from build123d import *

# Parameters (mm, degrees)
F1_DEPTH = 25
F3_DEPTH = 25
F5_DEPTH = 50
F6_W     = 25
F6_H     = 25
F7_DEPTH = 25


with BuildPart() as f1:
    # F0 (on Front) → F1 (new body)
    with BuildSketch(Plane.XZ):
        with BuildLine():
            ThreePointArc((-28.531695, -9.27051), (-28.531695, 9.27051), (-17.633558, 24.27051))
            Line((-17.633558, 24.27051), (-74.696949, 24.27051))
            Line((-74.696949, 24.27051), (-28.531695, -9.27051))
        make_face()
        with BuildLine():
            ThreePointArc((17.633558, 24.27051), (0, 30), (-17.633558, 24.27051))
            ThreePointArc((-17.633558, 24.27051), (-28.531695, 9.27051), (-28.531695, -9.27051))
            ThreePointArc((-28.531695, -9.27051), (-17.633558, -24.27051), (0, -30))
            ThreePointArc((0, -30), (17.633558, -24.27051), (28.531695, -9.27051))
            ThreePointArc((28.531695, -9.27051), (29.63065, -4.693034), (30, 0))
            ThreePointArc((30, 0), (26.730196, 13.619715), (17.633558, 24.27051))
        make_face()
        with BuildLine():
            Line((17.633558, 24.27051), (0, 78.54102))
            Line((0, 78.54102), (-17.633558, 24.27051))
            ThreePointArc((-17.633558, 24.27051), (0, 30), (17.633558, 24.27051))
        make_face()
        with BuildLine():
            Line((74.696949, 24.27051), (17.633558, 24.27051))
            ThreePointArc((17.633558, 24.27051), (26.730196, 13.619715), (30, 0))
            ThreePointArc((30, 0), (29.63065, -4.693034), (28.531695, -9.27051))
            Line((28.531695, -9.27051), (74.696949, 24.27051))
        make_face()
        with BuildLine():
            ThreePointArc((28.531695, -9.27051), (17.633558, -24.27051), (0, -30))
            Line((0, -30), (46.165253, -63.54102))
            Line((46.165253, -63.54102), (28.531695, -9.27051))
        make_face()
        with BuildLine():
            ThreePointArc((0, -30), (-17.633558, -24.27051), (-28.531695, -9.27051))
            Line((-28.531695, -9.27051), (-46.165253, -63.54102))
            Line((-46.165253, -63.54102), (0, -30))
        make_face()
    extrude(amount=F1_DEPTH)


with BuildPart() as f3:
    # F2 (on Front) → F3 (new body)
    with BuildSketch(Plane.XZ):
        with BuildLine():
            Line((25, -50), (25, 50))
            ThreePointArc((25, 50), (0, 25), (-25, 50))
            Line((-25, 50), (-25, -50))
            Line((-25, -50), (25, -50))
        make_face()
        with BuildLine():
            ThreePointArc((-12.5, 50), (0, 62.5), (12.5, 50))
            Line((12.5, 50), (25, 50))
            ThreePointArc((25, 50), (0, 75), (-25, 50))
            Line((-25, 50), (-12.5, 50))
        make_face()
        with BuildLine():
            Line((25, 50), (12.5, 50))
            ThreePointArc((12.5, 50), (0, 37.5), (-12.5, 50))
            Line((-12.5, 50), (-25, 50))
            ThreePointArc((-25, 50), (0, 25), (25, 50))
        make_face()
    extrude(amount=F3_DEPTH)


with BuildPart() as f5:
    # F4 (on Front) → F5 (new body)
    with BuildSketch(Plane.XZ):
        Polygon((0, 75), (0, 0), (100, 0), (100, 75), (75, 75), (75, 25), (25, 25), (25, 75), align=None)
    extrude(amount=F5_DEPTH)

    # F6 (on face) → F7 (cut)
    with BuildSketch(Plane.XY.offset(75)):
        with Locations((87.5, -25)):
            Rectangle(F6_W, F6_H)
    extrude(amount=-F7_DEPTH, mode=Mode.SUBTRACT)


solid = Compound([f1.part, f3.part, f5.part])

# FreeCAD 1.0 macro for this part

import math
import FreeCAD as App
import Part
import Sketcher
Q = App.Units.Quantity

doc = App.newDocument("Part")
body = doc.addObject("PartDesign::Body", "Body")

# Sketch on XZ plane
sketch1 = doc.addObject("Sketcher::SketchObject", "Sketch")
body.addObject(sketch1)
sketch1.AttachmentSupport = (doc.XZ_Plane, [""])
sketch1.MapMode = "FlatFace"
sketch1.addGeometry([
    Part.LineSegment(App.Vector(-18, 24, 0), App.Vector(-75, 24, 0)),  # 0
    Part.LineSegment(App.Vector(-75, 24, 0), App.Vector(-29, -9, 0)),  # 1
    Part.LineSegment(App.Vector(-29, -9, 0), App.Vector(-46, -64, 0)),  # 2
    Part.LineSegment(App.Vector(-46, -64, 0), App.Vector(0, -30, 0)),  # 3
    Part.LineSegment(App.Vector(0, -30, 0), App.Vector(46, -64, 0)),  # 4
    Part.LineSegment(App.Vector(46, -64, 0), App.Vector(29, -9, 0)),  # 5
    Part.LineSegment(App.Vector(29, -9, 0), App.Vector(75, 24, 0)),  # 6
    Part.LineSegment(App.Vector(75, 24, 0), App.Vector(18, 24, 0)),  # 7
    Part.LineSegment(App.Vector(18, 24, 0), App.Vector(0, 79, 0)),  # 8
    Part.LineSegment(App.Vector(0, 79, 0), App.Vector(-18, 24, 0)),  # 9
], False)
sketch1.addConstraint([
    Sketcher.Constraint("Coincident", 0, 2, 1, 1),
    Sketcher.Constraint("Coincident", 1, 2, 2, 1),
    Sketcher.Constraint("Coincident", 2, 2, 3, 1),
    Sketcher.Constraint("Coincident", 3, 2, 4, 1),
    Sketcher.Constraint("Coincident", 4, 2, 5, 1),
    Sketcher.Constraint("Coincident", 5, 2, 6, 1),
    Sketcher.Constraint("Coincident", 6, 2, 7, 1),
    Sketcher.Constraint("Coincident", 7, 2, 8, 1),
    Sketcher.Constraint("Coincident", 8, 2, 9, 1),
    Sketcher.Constraint("Coincident", 9, 2, 0, 1),
    Sketcher.Constraint("Horizontal", 0),
    Sketcher.Constraint("Horizontal", 7),
    Sketcher.Constraint("Symmetric", 2, 2, 4, 2, -2),
    Sketcher.Constraint("Symmetric", 1, 2, 5, 2, -2),
    Sketcher.Constraint("Symmetric", 0, 2, 6, 2, -2),
    Sketcher.Constraint("PointOnObject", 3, 2, -2),
    Sketcher.Constraint("PointOnObject", 8, 2, -2),
    Sketcher.Constraint("Parallel", 1, 4),
    Sketcher.Constraint("Parallel", 5, 8),
    Sketcher.Constraint("Parallel", 2, 9),
    Sketcher.Constraint("Equal", 1, 2),
    Sketcher.Constraint("Equal", 2, 3),
    Sketcher.Constraint("Equal", 6, 8),
    Sketcher.Constraint("Angle", 1, Q("-36 deg")),
    Sketcher.Constraint("Angle", 2, Q("-108 deg")),
    Sketcher.Constraint("DistanceY", 3, 2, -1, 1, 30.0),
    Sketcher.Constraint("DistanceX", 0, 2, 0, 1, 57.063391),
])
pad1 = doc.addObject("PartDesign::Pad", "Pad")
body.addObject(pad1)
pad1.Profile = sketch1
pad1.Length = 25
body2 = doc.addObject("PartDesign::Body", "Body001")

# Sketch on XZ plane
sketch2 = doc.addObject("Sketcher::SketchObject", "Sketch001")
body2.addObject(sketch2)
sketch2.AttachmentSupport = (doc.getObject("XZ_Plane001"), [""])
sketch2.MapMode = "FlatFace"
sketch2.addGeometry([
    Part.LineSegment(App.Vector(25, -50, 0), App.Vector(25, 50, 0)),  # 0
    Part.ArcOfCircle(Part.Circle(App.Vector(0, 50, 0), App.Vector(0, 0, 1), 25), math.radians(0), math.radians(180)),  # 1
    Part.LineSegment(App.Vector(-25, 50, 0), App.Vector(-25, -50, 0)),  # 2
    Part.LineSegment(App.Vector(-25, -50, 0), App.Vector(25, -50, 0)),  # 3
    Part.Circle(App.Vector(0, 50, 0), App.Vector(0, 0, 1), 12),  # 4
], False)
sketch2.addConstraint([
    Sketcher.Constraint("Tangent", 0, 2, 1, 1),
    Sketcher.Constraint("Tangent", 1, 2, 2, 1),
    Sketcher.Constraint("Coincident", 2, 2, 3, 1),
    Sketcher.Constraint("Coincident", 3, 2, 0, 1),
    Sketcher.Constraint("Vertical", 0),
    Sketcher.Constraint("Vertical", 2),
    Sketcher.Constraint("Horizontal", 3),
    Sketcher.Constraint("Coincident", 4, 3, 1, 3),
    Sketcher.Constraint("Symmetric", 0, 2, 2, 2, -1, 1),
    Sketcher.Constraint("Diameter", 4, 25.0),
    Sketcher.Constraint("Radius", 1, 25.0),
    Sketcher.Constraint("DistanceY", 0, 1, 0, 2, 100.0),
])
pad2 = doc.addObject("PartDesign::Pad", "Pad001")
body2.addObject(pad2)
pad2.Profile = sketch2
pad2.Length = 25
body3 = doc.addObject("PartDesign::Body", "Body002")

# Sketch on XZ plane
sketch3 = doc.addObject("Sketcher::SketchObject", "Sketch002")
body3.addObject(sketch3)
sketch3.AttachmentSupport = (doc.getObject("XZ_Plane002"), [""])
sketch3.MapMode = "FlatFace"
sketch3.addGeometry([
    Part.LineSegment(App.Vector(0, 75, 0), App.Vector(0, 0, 0)),  # 0
    Part.LineSegment(App.Vector(0, 0, 0), App.Vector(100, 0, 0)),  # 1
    Part.LineSegment(App.Vector(100, 0, 0), App.Vector(100, 75, 0)),  # 2
    Part.LineSegment(App.Vector(100, 75, 0), App.Vector(75, 75, 0)),  # 3
    Part.LineSegment(App.Vector(75, 75, 0), App.Vector(75, 25, 0)),  # 4
    Part.LineSegment(App.Vector(75, 25, 0), App.Vector(25, 25, 0)),  # 5
    Part.LineSegment(App.Vector(25, 25, 0), App.Vector(25, 75, 0)),  # 6
    Part.LineSegment(App.Vector(25, 75, 0), App.Vector(0, 75, 0)),  # 7
], False)
sketch3.addConstraint([
    Sketcher.Constraint("Coincident", 0, 2, 1, 1),
    Sketcher.Constraint("Coincident", 1, 2, 2, 1),
    Sketcher.Constraint("Coincident", 2, 2, 3, 1),
    Sketcher.Constraint("Coincident", 3, 2, 4, 1),
    Sketcher.Constraint("Coincident", 4, 2, 5, 1),
    Sketcher.Constraint("Coincident", 5, 2, 6, 1),
    Sketcher.Constraint("Coincident", 6, 2, 7, 1),
    Sketcher.Constraint("Coincident", 7, 2, 0, 1),
    Sketcher.Constraint("Vertical", 0),
    Sketcher.Constraint("Horizontal", 1),
    Sketcher.Constraint("Vertical", 2),
    Sketcher.Constraint("Horizontal", 3),
    Sketcher.Constraint("Vertical", 4),
    Sketcher.Constraint("Horizontal", 5),
    Sketcher.Constraint("Vertical", 6),
    Sketcher.Constraint("Horizontal", 7),
    Sketcher.Constraint("Coincident", 0, 2, -1, 1),
    Sketcher.Constraint("Horizontal", 3, 2, 6, 2),
    Sketcher.Constraint("Equal", 3, 7),
    Sketcher.Constraint("Equal", 5, 4),
    Sketcher.Constraint("DistanceX", 1, 1, 1, 2, 100.0),
    Sketcher.Constraint("DistanceX", 3, 2, 3, 1, 25.0),
    Sketcher.Constraint("DistanceY", 0, 2, 0, 1, 75.0),
])
pad3 = doc.addObject("PartDesign::Pad", "Pad002")
body3.addObject(pad3)
pad3.Profile = sketch3
pad3.Length = 50

# Sketch on XY plane
sketch4 = doc.addObject("Sketcher::SketchObject", "Sketch003")
body3.addObject(sketch4)
sketch4.AttachmentSupport = (doc.getObject("XY_Plane002"), [""])
sketch4.MapMode = "FlatFace"
sketch4.AttachmentOffset = App.Placement(App.Vector(0, 0, 75), App.Rotation())
sketch4.addGeometry([
    Part.LineSegment(App.Vector(75, -12, 0), App.Vector(75, -38, 0)),
    Part.LineSegment(App.Vector(75, -38, 0), App.Vector(100, -38, 0)),
    Part.LineSegment(App.Vector(100, -38, 0), App.Vector(100, -12, 0)),
    Part.LineSegment(App.Vector(100, -12, 0), App.Vector(75, -12, 0)),
], False)
sketch4.addConstraint([
    Sketcher.Constraint("Coincident", 0, 2, 1, 1),
    Sketcher.Constraint("Coincident", 1, 2, 2, 1),
    Sketcher.Constraint("Coincident", 2, 2, 3, 1),
    Sketcher.Constraint("Coincident", 3, 2, 0, 1),
    Sketcher.Constraint("Vertical", 0),
    Sketcher.Constraint("Horizontal", 1),
    Sketcher.Constraint("Vertical", 2),
    Sketcher.Constraint("Horizontal", 3),
    Sketcher.Constraint("Equal", 3, 0),
    Sketcher.Constraint("DistanceX", 1, 1, 1, 2, 25.0),
    Sketcher.Constraint("DistanceX", -1, 1, 0, 2, 75.0),
    Sketcher.Constraint("DistanceY", 0, 2, -1, 1, 37.5),
])
pocket1 = doc.addObject("PartDesign::Pocket", "Pocket")
body3.addObject(pocket1)
pocket1.Profile = sketch4
pocket1.Length = 25

doc.recompute()
